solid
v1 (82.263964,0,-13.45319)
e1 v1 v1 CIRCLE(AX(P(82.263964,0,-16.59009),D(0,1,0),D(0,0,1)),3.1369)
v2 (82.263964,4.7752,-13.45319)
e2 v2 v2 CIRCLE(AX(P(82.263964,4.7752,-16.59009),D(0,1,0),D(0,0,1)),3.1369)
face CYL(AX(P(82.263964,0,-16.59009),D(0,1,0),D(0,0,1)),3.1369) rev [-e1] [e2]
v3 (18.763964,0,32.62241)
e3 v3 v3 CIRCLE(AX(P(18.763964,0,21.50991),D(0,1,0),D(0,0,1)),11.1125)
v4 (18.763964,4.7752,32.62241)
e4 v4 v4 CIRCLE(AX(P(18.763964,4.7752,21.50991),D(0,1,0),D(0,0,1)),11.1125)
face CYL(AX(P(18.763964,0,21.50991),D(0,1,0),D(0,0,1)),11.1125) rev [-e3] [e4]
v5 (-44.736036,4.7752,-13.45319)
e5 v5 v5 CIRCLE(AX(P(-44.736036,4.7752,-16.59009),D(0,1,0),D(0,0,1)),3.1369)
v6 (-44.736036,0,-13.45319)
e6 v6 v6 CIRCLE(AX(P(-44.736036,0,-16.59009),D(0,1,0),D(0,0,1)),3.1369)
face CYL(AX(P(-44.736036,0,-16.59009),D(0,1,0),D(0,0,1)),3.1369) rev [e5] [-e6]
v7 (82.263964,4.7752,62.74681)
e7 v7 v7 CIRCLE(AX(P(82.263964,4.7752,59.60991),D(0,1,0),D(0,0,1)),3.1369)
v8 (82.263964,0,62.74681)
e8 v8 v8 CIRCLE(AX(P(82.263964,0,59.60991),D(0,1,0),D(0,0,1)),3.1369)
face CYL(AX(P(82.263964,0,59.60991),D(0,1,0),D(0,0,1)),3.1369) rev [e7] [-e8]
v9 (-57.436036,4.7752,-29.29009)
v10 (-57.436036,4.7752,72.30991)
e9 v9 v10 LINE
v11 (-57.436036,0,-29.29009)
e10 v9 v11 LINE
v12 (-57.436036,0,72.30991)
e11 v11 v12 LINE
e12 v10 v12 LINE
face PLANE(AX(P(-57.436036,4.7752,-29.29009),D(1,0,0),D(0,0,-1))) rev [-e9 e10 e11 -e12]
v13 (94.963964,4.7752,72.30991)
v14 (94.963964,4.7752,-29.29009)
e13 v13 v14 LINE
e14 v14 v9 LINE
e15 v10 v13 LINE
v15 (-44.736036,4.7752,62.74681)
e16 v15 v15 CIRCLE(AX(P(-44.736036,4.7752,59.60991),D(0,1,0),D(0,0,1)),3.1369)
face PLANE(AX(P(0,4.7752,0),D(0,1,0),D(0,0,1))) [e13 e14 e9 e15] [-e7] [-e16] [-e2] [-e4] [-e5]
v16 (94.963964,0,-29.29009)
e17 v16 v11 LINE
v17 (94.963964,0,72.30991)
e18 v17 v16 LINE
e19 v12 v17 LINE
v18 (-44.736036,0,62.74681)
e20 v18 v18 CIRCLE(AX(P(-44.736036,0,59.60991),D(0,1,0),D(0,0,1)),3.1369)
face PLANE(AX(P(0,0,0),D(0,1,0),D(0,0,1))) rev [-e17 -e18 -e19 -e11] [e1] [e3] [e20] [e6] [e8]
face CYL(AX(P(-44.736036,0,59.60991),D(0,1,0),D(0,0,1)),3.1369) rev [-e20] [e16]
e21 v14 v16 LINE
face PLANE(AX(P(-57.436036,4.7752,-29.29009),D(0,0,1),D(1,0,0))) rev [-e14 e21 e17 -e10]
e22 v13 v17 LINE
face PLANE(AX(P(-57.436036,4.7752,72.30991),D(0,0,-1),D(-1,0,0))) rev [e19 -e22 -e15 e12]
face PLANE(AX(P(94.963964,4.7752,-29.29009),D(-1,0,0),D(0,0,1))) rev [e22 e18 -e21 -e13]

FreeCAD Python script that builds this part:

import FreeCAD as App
import Part
import Sketcher
from FreeCAD import Vector
Q = App.Units.Quantity

doc = App.newDocument("Part")
params = doc.addObject("Spreadsheet::Sheet", "Params")
for row, (alias, value) in enumerate([
    ("sketch1_width", "6 in"),
    ("sketch1_height", "4 in"),
    ("pad1_length", "0.188 in"),
    ("sketch2_diameter", "0.247 in"),
    ("sketch2_diameter2", "0.875 in"),
    ("pocket1_length", "0.188 in"),
], start=1):
    params.set(f"A{row}", alias)
    params.set(f"B{row}", "=" + value)
    params.setAlias(f"B{row}", alias)

body = doc.addObject("PartDesign::Body", "Body")

# Sketch on XZ plane
sketch1 = body.newObject("Sketcher::SketchObject", "Sketch")
sketch1.AttachmentSupport = (doc.getObject("XZ_Plane"), [""])
sketch1.MapMode = "FlatFace"
sketch1.addGeometry(Part.LineSegment(Vector(-57.436036, -29.29009, 0), Vector(-57.436036, 72.30991, 0)), False)
sketch1.addGeometry(Part.LineSegment(Vector(-57.436036, 72.30991, 0), Vector(94.963964, 72.30991, 0)), False)
sketch1.addGeometry(Part.LineSegment(Vector(94.963964, 72.30991, 0), Vector(94.963964, -29.29009, 0)), False)
sketch1.addGeometry(Part.LineSegment(Vector(94.963964, -29.29009, 0), Vector(-57.436036, -29.29009, 0)), False)
sketch1.addConstraint(Sketcher.Constraint("Coincident", 0, 2, 1, 1))
sketch1.addConstraint(Sketcher.Constraint("Coincident", 1, 2, 2, 1))
sketch1.addConstraint(Sketcher.Constraint("Coincident", 2, 2, 3, 1))
sketch1.addConstraint(Sketcher.Constraint("Coincident", 3, 2, 0, 1))
sketch1.addConstraint(Sketcher.Constraint("Vertical", 0))
sketch1.addConstraint(Sketcher.Constraint("Horizontal", 1))
sketch1.addConstraint(Sketcher.Constraint("Vertical", 2))
sketch1.addConstraint(Sketcher.Constraint("Horizontal", 3))
sketch1.addConstraint(Sketcher.Constraint("DistanceX", 1, 1, 1, 2, Q("6 in")))
sketch1.addConstraint(Sketcher.Constraint("DistanceY", 0, 1, 0, 2, Q("4 in")))
sketch1.addConstraint(Sketcher.Constraint("DistanceY", -1, 1, 0, 2, 72.30991))
sketch1.addConstraint(Sketcher.Constraint("DistanceX", 0, 2, -1, 1, 57.436036))
sketch1.setExpression("Constraints[8]", "Params.sketch1_width")
sketch1.setExpression("Constraints[9]", "Params.sketch1_height")
pad1 = body.newObject("PartDesign::Pad", "Pad")
pad1.Profile = sketch1
pad1.setExpression("Length", "Params.pad1_length")
pad1.Reversed = True

# Sketch on XZ plane
sketch2 = body.newObject("Sketcher::SketchObject", "Sketch001")
sketch2.AttachmentSupport = (doc.getObject("XZ_Plane"), [""])
sketch2.MapMode = "FlatFace"
sketch2.AttachmentOffset = App.Placement(Vector(0, 0, -0.188 * 25.4), App.Rotation())
sketch2.addGeometry(Part.Circle(Vector(-44.736036, -16.59009, 0), Vector(0, 0, 1), 3.1369), False)
sketch2.addGeometry(Part.Circle(Vector(82.263964, -16.59009, 0), Vector(0, 0, 1), 3.1369), False)
sketch2.addGeometry(Part.Circle(Vector(82.263964, 59.60991, 0), Vector(0, 0, 1), 3.1369), False)
sketch2.addGeometry(Part.Circle(Vector(-44.736036, 59.60991, 0), Vector(0, 0, 1), 3.1369), False)
sketch2.addGeometry(Part.Circle(Vector(18.763964, 21.50991, 0), Vector(0, 0, 1), 11.1125), False)
sketch2.addConstraint(Sketcher.Constraint("Equal", 0, 1))
sketch2.addConstraint(Sketcher.Constraint("Equal", 1, 2))
sketch2.addConstraint(Sketcher.Constraint("Equal", 2, 3))
sketch2.addConstraint(Sketcher.Constraint("Horizontal", 0, 3, 1, 3))
sketch2.addConstraint(Sketcher.Constraint("Horizontal", 2, 3, 3, 3))
sketch2.addConstraint(Sketcher.Constraint("Vertical", 1, 3, 2, 3))
sketch2.addConstraint(Sketcher.Constraint("Vertical", 0, 3, 3, 3))
sketch2.addConstraint(Sketcher.Constraint("Diameter", 0, Q("0.247 in")))
sketch2.addConstraint(Sketcher.Constraint("Diameter", 4, Q("0.875 in")))
sketch2.addConstraint(Sketcher.Constraint("DistanceX", 0, 3, 1, 3, Q("5 in")))
sketch2.addConstraint(Sketcher.Constraint("DistanceY", 1, 3, 2, 3, Q("3 in")))
sketch2.addConstraint(Sketcher.Constraint("DistanceX", 0, 3, 4, 3, Q("2.5 in")))
sketch2.addConstraint(Sketcher.Constraint("DistanceY", 0, 3, 4, 3, Q("1.5 in")))
sketch2.addConstraint(Sketcher.Constraint("DistanceY", 0, 3, -1, 1, 16.59009))
sketch2.addConstraint(Sketcher.Constraint("DistanceX", 0, 3, -1, 1, 44.736036))
sketch2.setExpression("Constraints[7]", "Params.sketch2_diameter")
sketch2.setExpression("Constraints[8]", "Params.sketch2_diameter2")
pocket1 = body.newObject("PartDesign::Pocket", "Pocket")
pocket1.Profile = sketch2
pocket1.setExpression("Length", "Params.pocket1_length")
pocket1.Reversed = True

doc.recompute()
